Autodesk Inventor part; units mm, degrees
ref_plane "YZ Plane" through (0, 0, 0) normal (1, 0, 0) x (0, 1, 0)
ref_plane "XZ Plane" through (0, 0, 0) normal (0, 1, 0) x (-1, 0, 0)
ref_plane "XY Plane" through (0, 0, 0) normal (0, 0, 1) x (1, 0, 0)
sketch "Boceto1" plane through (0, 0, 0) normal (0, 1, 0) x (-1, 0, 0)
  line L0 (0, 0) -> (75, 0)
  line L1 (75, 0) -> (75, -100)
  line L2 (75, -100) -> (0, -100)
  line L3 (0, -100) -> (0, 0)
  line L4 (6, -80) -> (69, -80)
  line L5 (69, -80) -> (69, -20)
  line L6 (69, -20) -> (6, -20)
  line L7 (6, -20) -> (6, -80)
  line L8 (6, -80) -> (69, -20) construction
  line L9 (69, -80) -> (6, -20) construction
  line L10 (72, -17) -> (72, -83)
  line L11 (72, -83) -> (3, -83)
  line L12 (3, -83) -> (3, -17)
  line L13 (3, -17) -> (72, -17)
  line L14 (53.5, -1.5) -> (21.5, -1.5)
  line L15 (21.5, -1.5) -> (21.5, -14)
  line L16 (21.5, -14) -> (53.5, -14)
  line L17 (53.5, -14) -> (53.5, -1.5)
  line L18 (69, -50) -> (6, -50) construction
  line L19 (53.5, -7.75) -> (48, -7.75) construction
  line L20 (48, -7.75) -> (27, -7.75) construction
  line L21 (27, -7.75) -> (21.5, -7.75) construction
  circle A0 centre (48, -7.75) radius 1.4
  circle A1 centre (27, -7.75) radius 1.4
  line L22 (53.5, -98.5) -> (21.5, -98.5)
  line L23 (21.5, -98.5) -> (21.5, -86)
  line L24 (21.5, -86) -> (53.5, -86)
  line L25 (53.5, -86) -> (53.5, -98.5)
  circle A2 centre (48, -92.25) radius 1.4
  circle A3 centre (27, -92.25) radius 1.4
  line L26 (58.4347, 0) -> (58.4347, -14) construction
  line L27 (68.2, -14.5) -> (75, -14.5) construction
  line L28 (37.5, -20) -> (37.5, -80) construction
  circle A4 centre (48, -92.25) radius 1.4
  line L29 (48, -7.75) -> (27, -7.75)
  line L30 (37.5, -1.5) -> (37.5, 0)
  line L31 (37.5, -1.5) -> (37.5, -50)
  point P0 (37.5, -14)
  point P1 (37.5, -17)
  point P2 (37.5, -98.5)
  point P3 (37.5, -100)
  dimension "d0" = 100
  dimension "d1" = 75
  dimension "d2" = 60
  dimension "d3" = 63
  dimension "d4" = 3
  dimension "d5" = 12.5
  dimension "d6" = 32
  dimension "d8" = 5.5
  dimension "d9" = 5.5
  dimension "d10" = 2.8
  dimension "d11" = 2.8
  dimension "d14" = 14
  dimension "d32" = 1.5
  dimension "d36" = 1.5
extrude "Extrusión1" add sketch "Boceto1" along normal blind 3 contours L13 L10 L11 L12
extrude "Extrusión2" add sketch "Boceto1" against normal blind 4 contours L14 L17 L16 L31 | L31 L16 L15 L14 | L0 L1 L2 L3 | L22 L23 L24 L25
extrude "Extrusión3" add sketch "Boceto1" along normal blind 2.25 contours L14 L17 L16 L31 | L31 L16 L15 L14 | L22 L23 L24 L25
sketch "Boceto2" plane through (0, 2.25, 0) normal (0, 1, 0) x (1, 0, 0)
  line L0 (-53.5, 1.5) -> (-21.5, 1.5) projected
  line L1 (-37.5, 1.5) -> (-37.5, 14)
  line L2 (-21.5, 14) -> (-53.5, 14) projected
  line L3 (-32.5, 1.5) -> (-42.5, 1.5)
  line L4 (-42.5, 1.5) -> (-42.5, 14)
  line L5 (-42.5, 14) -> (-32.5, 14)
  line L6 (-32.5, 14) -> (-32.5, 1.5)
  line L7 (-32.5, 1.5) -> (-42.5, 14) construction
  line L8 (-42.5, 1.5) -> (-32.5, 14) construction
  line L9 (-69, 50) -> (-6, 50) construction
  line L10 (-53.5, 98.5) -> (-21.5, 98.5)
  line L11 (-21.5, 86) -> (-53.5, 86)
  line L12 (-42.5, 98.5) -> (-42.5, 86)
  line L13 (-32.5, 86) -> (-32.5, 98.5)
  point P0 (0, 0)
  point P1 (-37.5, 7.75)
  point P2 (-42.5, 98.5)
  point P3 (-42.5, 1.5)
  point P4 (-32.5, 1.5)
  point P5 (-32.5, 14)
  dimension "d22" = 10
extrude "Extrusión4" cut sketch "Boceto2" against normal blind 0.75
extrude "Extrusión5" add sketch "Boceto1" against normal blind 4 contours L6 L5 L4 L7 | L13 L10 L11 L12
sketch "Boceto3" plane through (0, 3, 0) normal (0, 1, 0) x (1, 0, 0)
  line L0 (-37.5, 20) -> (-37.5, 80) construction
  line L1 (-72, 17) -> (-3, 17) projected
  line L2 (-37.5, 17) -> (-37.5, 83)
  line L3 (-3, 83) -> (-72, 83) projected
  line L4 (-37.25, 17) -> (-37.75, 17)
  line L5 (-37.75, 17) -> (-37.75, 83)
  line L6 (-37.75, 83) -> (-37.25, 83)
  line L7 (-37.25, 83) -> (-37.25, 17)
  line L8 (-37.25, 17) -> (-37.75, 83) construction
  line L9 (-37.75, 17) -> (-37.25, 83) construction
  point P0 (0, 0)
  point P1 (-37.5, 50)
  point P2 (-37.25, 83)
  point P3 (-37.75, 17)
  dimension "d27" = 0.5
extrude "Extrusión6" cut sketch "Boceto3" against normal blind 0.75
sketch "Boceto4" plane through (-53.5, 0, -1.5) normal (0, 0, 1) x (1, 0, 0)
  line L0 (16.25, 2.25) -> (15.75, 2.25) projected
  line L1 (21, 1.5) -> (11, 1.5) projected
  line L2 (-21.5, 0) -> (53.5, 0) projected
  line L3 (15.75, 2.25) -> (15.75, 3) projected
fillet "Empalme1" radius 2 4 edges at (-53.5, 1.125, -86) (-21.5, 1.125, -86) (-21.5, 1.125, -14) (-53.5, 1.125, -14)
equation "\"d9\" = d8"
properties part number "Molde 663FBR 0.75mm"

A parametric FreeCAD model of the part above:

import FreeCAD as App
import Part
import Sketcher
from FreeCAD import Vector


def edges_at(feature, points):
    """Names of the edges that pass closest to the given points."""
    edges = feature.Shape.Edges
    near = lambda p: min(range(len(edges)), key=lambda i: edges[i].distToShape(Part.Vertex(*p))[0])
    return sorted({f"Edge{near(p) + 1}" for p in points})


def add_polygon(sketch, points):
    """Adds a closed chain of lines whose ends are joined by coincident constraints."""
    first, n = sketch.GeometryCount, len(points)
    for a, b in zip(points, points[1:] + points[:1]):
        sketch.addGeometry(Part.LineSegment(App.Vector(*a, 0), App.Vector(*b, 0)), False)
    for i in range(n):
        sketch.addConstraint(Sketcher.Constraint("Coincident", first + i, 2, first + (i + 1) % n, 1))

doc = App.newDocument("Part")
params = doc.addObject("Spreadsheet::Sheet", "Params")
for row, (alias, value) in enumerate([
    ("sketch1_width", "63 mm"),
    ("sketch1_height", "60 mm"),
    ("pad1_length", "3 mm"),
    ("sketch2_diameter", "2.8 mm"),
    ("sketch2_width", "75 mm"),
    ("sketch2_height", "100 mm"),
    ("sketch2_height2", "66 mm"),
    ("pad2_length", "4 mm"),
    ("sketch3_diameter", "2.8 mm"),
    ("sketch3_width", "32 mm"),
    ("sketch3_height", "12.5 mm"),
    ("pad3_length", "2.25 mm"),
    ("sketch4_width", "10 mm"),
    ("sketch4_height", "12.5 mm"),
    ("pocket1_length", "0.75 mm"),
    ("sketch5_width", "69 mm"),
    ("sketch5_height", "66 mm"),
    ("pad4_length", "4 mm"),
    ("sketch6_width", "0.5 mm"),
    ("sketch6_height", "66 mm"),
    ("pocket2_length", "0.75 mm"),
    ("fillet_radius", "2 mm"),
], start=1):
    params.set(f"A{row}", alias)
    params.set(f"B{row}", "=" + value)
    params.setAlias(f"B{row}", alias)

body = doc.addObject("PartDesign::Body", "Body")
body.AllowCompound = True

# Sketch on XZ plane
sketch1 = doc.addObject("Sketcher::SketchObject", "Sketch")
body.addObject(sketch1)
sketch1.AttachmentSupport = (doc.XZ_Plane, [""])
sketch1.MapMode = "FlatFace"
add_polygon(sketch1, [(-72, -17), (-38, -17), (-3, -17), (-3, -83), (-72, -83)])  # lines 0-4
add_polygon(sketch1, [(-6, -20), (-38, -20), (-69, -20), (-69, -80), (-6, -80)])  # lines 5-9
sketch1.addConstraint(Sketcher.Constraint("Horizontal", 0))
sketch1.addConstraint(Sketcher.Constraint("Horizontal", 1))
sketch1.addConstraint(Sketcher.Constraint("Vertical", 2))
sketch1.addConstraint(Sketcher.Constraint("Horizontal", 3))
sketch1.addConstraint(Sketcher.Constraint("Vertical", 4))
sketch1.addConstraint(Sketcher.Constraint("Horizontal", 5))
sketch1.addConstraint(Sketcher.Constraint("Horizontal", 6))
sketch1.addConstraint(Sketcher.Constraint("Vertical", 7))
sketch1.addConstraint(Sketcher.Constraint("Horizontal", 8))
sketch1.addConstraint(Sketcher.Constraint("Vertical", 9))
sketch1.addConstraint(Sketcher.Constraint("Vertical", 0, 2, 5, 2))
sketch1.addConstraint(Sketcher.Constraint("Equal", 0, 1))
sketch1.addConstraint(Sketcher.Constraint("Equal", 5, 6))
sketch1.addConstraint(Sketcher.Constraint("DistanceX", 8, 1, 8, 2, 63.0))
sketch1.addConstraint(Sketcher.Constraint("DistanceY", 7, 2, 7, 1, 60.0))
sketch1.addConstraint(Sketcher.Constraint("DistanceX", 1, 2, -1, 1, 3.0))
sketch1.addConstraint(Sketcher.Constraint("DistanceY", 5, 2, 0, 2, 3.0))
sketch1.addConstraint(Sketcher.Constraint("DistanceY", 2, 2, 5, 2, 63.0))
sketch1.addConstraint(Sketcher.Constraint("DistanceX", 4, 2, 6, 2, 3.0))
sketch1.addConstraint(Sketcher.Constraint("DistanceY", 0, 2, -1, 1, 17.0))
sketch1.setExpression("Constraints[23]", "Params.sketch1_width")
sketch1.setExpression("Constraints[24]", "Params.sketch1_height")
pad1 = doc.addObject("PartDesign::Pad", "Pad")
body.addObject(pad1)
pad1.Profile = sketch1
pad1.setExpression("Length", "Params.pad1_length")
pad1.Reversed = True

# Sketch on XZ plane
sketch2 = doc.addObject("Sketcher::SketchObject", "Sketch001")
body.addObject(sketch2)
sketch2.AttachmentSupport = (doc.XZ_Plane, [""])
sketch2.MapMode = "FlatFace"
add_polygon(sketch2, [(-37.5, 0), (0, 0), (0, -100), (-75, -100), (-75, 0)])  # lines 0-4
sketch2.addGeometry(Part.Circle(Vector(-48, -7.8, 0), Vector(0, 0, 1), 1.4), False)  # 5
add_polygon(sketch2, [(-3, -17), (-37.5, -17), (-72, -17), (-72, -83), (-3, -83)])  # lines 6-10
sketch2.addGeometry(Part.Circle(Vector(-27, -7.8, 0), Vector(0, 0, 1), 1.4), False)  # 11
sketch2.addGeometry(Part.Circle(Vector(-27, -92.2, 0), Vector(0, 0, 1), 1.4), False)  # 12
sketch2.addGeometry(Part.Circle(Vector(-48, -92.2, 0), Vector(0, 0, 1), 1.4), False)  # 13
sketch2.addConstraint(Sketcher.Constraint("Horizontal", 0))
sketch2.addConstraint(Sketcher.Constraint("Vertical", 1))
sketch2.addConstraint(Sketcher.Constraint("Horizontal", 2))
sketch2.addConstraint(Sketcher.Constraint("Vertical", 3))
sketch2.addConstraint(Sketcher.Constraint("Horizontal", 4))
sketch2.addConstraint(Sketcher.Constraint("Horizontal", 6))
sketch2.addConstraint(Sketcher.Constraint("Horizontal", 7))
sketch2.addConstraint(Sketcher.Constraint("Vertical", 8))
sketch2.addConstraint(Sketcher.Constraint("Horizontal", 9))
sketch2.addConstraint(Sketcher.Constraint("Vertical", 10))
sketch2.addConstraint(Sketcher.Constraint("Coincident", 0, 2, -1, 1))
sketch2.addConstraint(Sketcher.Constraint("Equal", 5, 11))
sketch2.addConstraint(Sketcher.Constraint("Equal", 11, 12))
sketch2.addConstraint(Sketcher.Constraint("Equal", 12, 13))
sketch2.addConstraint(Sketcher.Constraint("Horizontal", 5, 3, 11, 3))
sketch2.addConstraint(Sketcher.Constraint("Horizontal", 12, 3, 13, 3))
sketch2.addConstraint(Sketcher.Constraint("Vertical", 11, 3, 12, 3))
sketch2.addConstraint(Sketcher.Constraint("Vertical", 5, 3, 13, 3))
sketch2.addConstraint(Sketcher.Constraint("Vertical", 4, 2, 6, 2))
sketch2.addConstraint(Sketcher.Constraint("Equal", 0, 4))
sketch2.addConstraint(Sketcher.Constraint("Equal", 6, 7))
sketch2.addConstraint(Sketcher.Constraint("Diameter", 5, 2.8))
sketch2.addConstraint(Sketcher.Constraint("DistanceX", 2, 2, 2, 1, 75.0))
sketch2.addConstraint(Sketcher.Constraint("DistanceY", 1, 2, 1, 1, 100.0))
sketch2.addConstraint(Sketcher.Constraint("DistanceX", 9, 2, -1, 1, 3.0))
sketch2.addConstraint(Sketcher.Constraint("DistanceY", 8, 2, 8, 1, 66.0))
sketch2.addConstraint(Sketcher.Constraint("DistanceX", 5, 3, -1, 1, 48.0))
sketch2.addConstraint(Sketcher.Constraint("DistanceX", 11, 3, -1, 1, 27.0))
sketch2.addConstraint(Sketcher.Constraint("DistanceY", 6, 2, -1, 1, 17.0))
sketch2.addConstraint(Sketcher.Constraint("DistanceY", 12, 3, 11, 3, 84.5))
sketch2.addConstraint(Sketcher.Constraint("DistanceY", 5, 3, -1, 1, 7.75))
sketch2.setExpression("Constraints[31]", "Params.sketch2_diameter")
sketch2.setExpression("Constraints[32]", "Params.sketch2_width")
sketch2.setExpression("Constraints[33]", "Params.sketch2_height")
sketch2.setExpression("Constraints[35]", "Params.sketch2_height2")
pad2 = doc.addObject("PartDesign::Pad", "Pad001")
body.addObject(pad2)
pad2.Profile = sketch2
pad2.setExpression("Length", "Params.pad2_length")

# Sketch on XZ plane
sketch3 = doc.addObject("Sketcher::SketchObject", "Sketch002")
body.addObject(sketch3)
sketch3.AttachmentSupport = (doc.XZ_Plane, [""])
sketch3.MapMode = "FlatFace"
add_polygon(sketch3, [(-53.5, -1.5), (-21.5, -1.5), (-21.5, -14), (-53.5, -14)])  # lines 0-3
sketch3.addGeometry(Part.Circle(Vector(-48, -7.8, 0), Vector(0, 0, 1), 1.4), False)  # 4
sketch3.addGeometry(Part.Circle(Vector(-27, -7.8, 0), Vector(0, 0, 1), 1.4), False)  # 5
add_polygon(sketch3, [(-21.5, -98.5), (-53.5, -98.5), (-53.5, -86), (-21.5, -86)])  # lines 6-9
sketch3.addGeometry(Part.Circle(Vector(-27, -92.2, 0), Vector(0, 0, 1), 1.4), False)  # 10
sketch3.addGeometry(Part.Circle(Vector(-48, -92.2, 0), Vector(0, 0, 1), 1.4), False)  # 11
sketch3.addConstraint(Sketcher.Constraint("Horizontal", 0))
sketch3.addConstraint(Sketcher.Constraint("Vertical", 1))
sketch3.addConstraint(Sketcher.Constraint("Horizontal", 2))
sketch3.addConstraint(Sketcher.Constraint("Vertical", 3))
sketch3.addConstraint(Sketcher.Constraint("Horizontal", 6))
sketch3.addConstraint(Sketcher.Constraint("Vertical", 7))
sketch3.addConstraint(Sketcher.Constraint("Horizontal", 8))
sketch3.addConstraint(Sketcher.Constraint("Vertical", 9))
sketch3.addConstraint(Sketcher.Constraint("Equal", 4, 5))
sketch3.addConstraint(Sketcher.Constraint("Equal", 5, 10))
sketch3.addConstraint(Sketcher.Constraint("Equal", 10, 11))
sketch3.addConstraint(Sketcher.Constraint("Horizontal", 4, 3, 5, 3))
sketch3.addConstraint(Sketcher.Constraint("Horizontal", 10, 3, 11, 3))
sketch3.addConstraint(Sketcher.Constraint("Vertical", 5, 3, 10, 3))
sketch3.addConstraint(Sketcher.Constraint("Vertical", 4, 3, 11, 3))
sketch3.addConstraint(Sketcher.Constraint("Vertical", 3, 2, 6, 2))
sketch3.addConstraint(Sketcher.Constraint("Vertical", 1, 2, 8, 2))
sketch3.addConstraint(Sketcher.Constraint("Equal", 3, 7))
sketch3.addConstraint(Sketcher.Constraint("Diameter", 4, 2.8))
sketch3.addConstraint(Sketcher.Constraint("DistanceX", 0, 1, 0, 2, 32.0))
sketch3.addConstraint(Sketcher.Constraint("DistanceY", 1, 2, 1, 1, 12.5))
sketch3.addConstraint(Sketcher.Constraint("DistanceY", 1, 2, -1, 1, 14.0))
sketch3.addConstraint(Sketcher.Constraint("DistanceX", 5, 3, 0, 2, 5.5))
sketch3.addConstraint(Sketcher.Constraint("DistanceX", 2, 2, 4, 3, 5.5))
sketch3.addConstraint(Sketcher.Constraint("DistanceX", 4, 3, -1, 1, 48.0))
sketch3.addConstraint(Sketcher.Constraint("DistanceY", 7, 2, -1, 1, 86.0))
sketch3.addConstraint(Sketcher.Constraint("DistanceY", 10, 3, 5, 3, 84.5))
sketch3.addConstraint(Sketcher.Constraint("DistanceY", 4, 3, -1, 1, 7.75))
sketch3.setExpression("Constraints[26]", "Params.sketch3_diameter")
sketch3.setExpression("Constraints[27]", "Params.sketch3_width")
sketch3.setExpression("Constraints[28]", "Params.sketch3_height")
pad3 = doc.addObject("PartDesign::Pad", "Pad002")
body.addObject(pad3)
pad3.Profile = sketch3
pad3.setExpression("Length", "Params.pad3_length")
pad3.Reversed = True

# Sketch on XZ plane
sketch4 = doc.addObject("Sketcher::SketchObject", "Sketch003")
body.addObject(sketch4)
sketch4.AttachmentSupport = (doc.XZ_Plane, [""])
sketch4.MapMode = "FlatFace"
sketch4.AttachmentOffset = App.Placement(Vector(0, 0, -2.25), App.Rotation())
add_polygon(sketch4, [(-42, -14), (-42, -2), (-32, -2), (-32, -14)])  # lines 0-3
add_polygon(sketch4, [(-32, -98), (-42, -98), (-42, -86), (-32, -86)])  # lines 4-7
sketch4.addConstraint(Sketcher.Constraint("Vertical", 0))
sketch4.addConstraint(Sketcher.Constraint("Horizontal", 1))
sketch4.addConstraint(Sketcher.Constraint("Vertical", 2))
sketch4.addConstraint(Sketcher.Constraint("Horizontal", 3))
sketch4.addConstraint(Sketcher.Constraint("Horizontal", 4))
sketch4.addConstraint(Sketcher.Constraint("Vertical", 5))
sketch4.addConstraint(Sketcher.Constraint("Horizontal", 6))
sketch4.addConstraint(Sketcher.Constraint("Vertical", 7))
sketch4.addConstraint(Sketcher.Constraint("Vertical", 3, 2, 4, 2))
sketch4.addConstraint(Sketcher.Constraint("Vertical", 2, 2, 6, 2))
sketch4.addConstraint(Sketcher.Constraint("Equal", 2, 5))
sketch4.addConstraint(Sketcher.Constraint("DistanceX", 1, 1, 1, 2, 10.0))
sketch4.addConstraint(Sketcher.Constraint("DistanceY", 0, 1, 0, 2, 12.5))
sketch4.addConstraint(Sketcher.Constraint("DistanceY", 2, 2, -1, 1, 14.0))
sketch4.addConstraint(Sketcher.Constraint("DistanceY", 5, 2, -1, 1, 86.0))
sketch4.addConstraint(Sketcher.Constraint("DistanceX", 0, 2, -1, 1, 42.5))
sketch4.setExpression("Constraints[19]", "Params.sketch4_width")
sketch4.setExpression("Constraints[20]", "Params.sketch4_height")
pocket1 = doc.addObject("PartDesign::Pocket", "Pocket")
body.addObject(pocket1)
pocket1.Profile = sketch4
pocket1.setExpression("Length", "Params.pocket1_length")
pocket1.Reversed = True

# Sketch on XZ plane
sketch5 = doc.addObject("Sketcher::SketchObject", "Sketch004")
body.addObject(sketch5)
sketch5.AttachmentSupport = (doc.XZ_Plane, [""])
sketch5.MapMode = "FlatFace"
add_polygon(sketch5, [(-72, -17), (-38, -17), (-3, -17), (-3, -83), (-72, -83)])  # lines 0-4
sketch5.addConstraint(Sketcher.Constraint("Horizontal", 0))
sketch5.addConstraint(Sketcher.Constraint("Horizontal", 1))
sketch5.addConstraint(Sketcher.Constraint("Vertical", 2))
sketch5.addConstraint(Sketcher.Constraint("Horizontal", 3))
sketch5.addConstraint(Sketcher.Constraint("Vertical", 4))
sketch5.addConstraint(Sketcher.Constraint("Equal", 0, 1))
sketch5.addConstraint(Sketcher.Constraint("DistanceX", 1, 2, -1, 1, 3.0))
sketch5.addConstraint(Sketcher.Constraint("DistanceX", 3, 2, 3, 1, 69.0))
sketch5.addConstraint(Sketcher.Constraint("DistanceY", 2, 2, 2, 1, 66.0))
sketch5.addConstraint(Sketcher.Constraint("DistanceY", 0, 2, -1, 1, 17.0))
sketch5.setExpression("Constraints[12]", "Params.sketch5_width")
sketch5.setExpression("Constraints[13]", "Params.sketch5_height")
pad4 = doc.addObject("PartDesign::Pad", "Pad003")
body.addObject(pad4)
pad4.Profile = sketch5
pad4.setExpression("Length", "Params.pad4_length")

# Sketch on XZ plane
sketch6 = doc.addObject("Sketcher::SketchObject", "Sketch005")
body.addObject(sketch6)
sketch6.AttachmentSupport = (doc.XZ_Plane, [""])
sketch6.MapMode = "FlatFace"
sketch6.AttachmentOffset = App.Placement(Vector(0, 0, -3), App.Rotation())
add_polygon(sketch6, [(-37.8, -83), (-37.8, -17), (-37.2, -17), (-37.2, -83)])  # lines 0-3
sketch6.addConstraint(Sketcher.Constraint("Vertical", 0))
sketch6.addConstraint(Sketcher.Constraint("Horizontal", 1))
sketch6.addConstraint(Sketcher.Constraint("Vertical", 2))
sketch6.addConstraint(Sketcher.Constraint("Horizontal", 3))
sketch6.addConstraint(Sketcher.Constraint("DistanceX", 1, 1, 1, 2, 0.5))
sketch6.addConstraint(Sketcher.Constraint("DistanceY", 0, 1, 0, 2, 66.0))
sketch6.addConstraint(Sketcher.Constraint("DistanceY", 0, 2, -1, 1, 17.0))
sketch6.addConstraint(Sketcher.Constraint("DistanceX", 0, 2, -1, 1, 37.75))
sketch6.setExpression("Constraints[8]", "Params.sketch6_width")
sketch6.setExpression("Constraints[9]", "Params.sketch6_height")
pocket2 = doc.addObject("PartDesign::Pocket", "Pocket001")
body.addObject(pocket2)
pocket2.Profile = sketch6
pocket2.setExpression("Length", "Params.pocket2_length")
pocket2.Reversed = True
doc.recompute()

fillet = doc.addObject("PartDesign::Fillet", "Fillet")
body.addObject(fillet)
fillet.Base = (pocket2, edges_at(pocket2, [
    (-53.5, 1.125, -86),
    (-21.5, 1.125, -86),
    (-21.5, 1.125, -14),
    (-53.5, 1.125, -14),
]))
fillet.setExpression("Radius", "Params.fillet_radius")

doc.recompute()
